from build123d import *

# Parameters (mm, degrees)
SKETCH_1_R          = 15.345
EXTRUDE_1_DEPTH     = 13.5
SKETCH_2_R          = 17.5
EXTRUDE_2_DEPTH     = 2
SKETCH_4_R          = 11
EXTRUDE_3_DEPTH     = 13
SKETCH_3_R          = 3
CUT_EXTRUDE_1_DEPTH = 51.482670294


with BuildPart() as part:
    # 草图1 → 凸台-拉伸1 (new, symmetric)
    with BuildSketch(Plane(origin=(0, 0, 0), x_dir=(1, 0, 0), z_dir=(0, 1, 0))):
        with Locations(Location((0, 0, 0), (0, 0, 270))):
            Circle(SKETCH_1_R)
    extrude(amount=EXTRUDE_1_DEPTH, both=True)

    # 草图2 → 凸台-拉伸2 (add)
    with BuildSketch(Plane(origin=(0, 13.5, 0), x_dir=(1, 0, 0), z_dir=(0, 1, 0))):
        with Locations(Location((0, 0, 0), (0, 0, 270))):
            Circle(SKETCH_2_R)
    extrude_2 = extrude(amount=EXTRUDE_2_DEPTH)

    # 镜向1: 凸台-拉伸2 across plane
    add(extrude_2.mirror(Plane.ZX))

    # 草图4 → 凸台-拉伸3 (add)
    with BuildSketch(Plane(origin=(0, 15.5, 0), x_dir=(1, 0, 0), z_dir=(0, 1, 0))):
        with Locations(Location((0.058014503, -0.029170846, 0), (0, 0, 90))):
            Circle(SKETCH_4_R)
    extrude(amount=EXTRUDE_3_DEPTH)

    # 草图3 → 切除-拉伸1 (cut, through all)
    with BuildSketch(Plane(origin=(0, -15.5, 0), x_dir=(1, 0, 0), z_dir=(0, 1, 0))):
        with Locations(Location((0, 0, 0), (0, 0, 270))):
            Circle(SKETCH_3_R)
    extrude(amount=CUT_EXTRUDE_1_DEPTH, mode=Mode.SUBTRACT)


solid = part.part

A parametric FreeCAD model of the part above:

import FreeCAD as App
import Part
import Sketcher

doc = App.newDocument("Part")
body = doc.addObject("PartDesign::Body", "Body")

# Sketch on XZ plane
sketch1 = body.newObject("Sketcher::SketchObject", "Sketch")
sketch1.AttachmentSupport = (doc.getObject("XZ_Plane"), [""])
sketch1.MapMode = "FlatFace"
sketch1.addGeometry(Part.Circle(App.Vector(0, 0, 0), App.Vector(0, 0, 1), 15), False)
sketch1.addConstraint([
    Sketcher.Constraint("Coincident", 0, 3, -1, 1),
    Sketcher.Constraint("Diameter", 0, 30.69),
])
pad1 = body.newObject("PartDesign::Pad", "Pad")
pad1.Profile = sketch1
pad1.Length = 27
pad1.Midplane = True

# Sketch on XZ plane
sketch2 = body.newObject("Sketcher::SketchObject", "Sketch001")
sketch2.AttachmentSupport = (doc.getObject("XZ_Plane"), [""])
sketch2.MapMode = "FlatFace"
sketch2.AttachmentOffset = App.Placement(App.Vector(0, 0, -13.5), App.Rotation())
sketch2.addGeometry(Part.Circle(App.Vector(0, 0, 0), App.Vector(0, 0, 1), 18), False)
sketch2.addConstraint([
    Sketcher.Constraint("Coincident", 0, 3, -1, 1),
    Sketcher.Constraint("Diameter", 0, 35.0),
])
pad2 = body.newObject("PartDesign::Pad", "Pad001")
pad2.Profile = sketch2
pad2.Length = 2
pad2.Reversed = True
doc.recompute()

mirrored = body.newObject("PartDesign::Mirrored", "Mirrored")
mirrored.Originals = [pad2]
mirrored.MirrorPlane = (doc.getObject("XZ_Plane"), [""])
body.Tip = mirrored

# Sketch on XZ plane
sketch3 = body.newObject("Sketcher::SketchObject", "Sketch002")
sketch3.AttachmentSupport = (doc.getObject("XZ_Plane"), [""])
sketch3.MapMode = "FlatFace"
sketch3.AttachmentOffset = App.Placement(App.Vector(0, 0, -15.5), App.Rotation())
sketch3.addGeometry(Part.Circle(App.Vector(0, 0, 0), App.Vector(0, 0, 1), 11), False)
sketch3.addConstraint([
    Sketcher.Constraint("Diameter", 0, 22.0),
    Sketcher.Constraint("DistanceY", -1, 1, 0, 3, 0.029171),
    Sketcher.Constraint("DistanceX", -1, 1, 0, 3, 0.058015),
])
pad3 = body.newObject("PartDesign::Pad", "Pad002")
pad3.Profile = sketch3
pad3.Length = 13
pad3.Reversed = True

# Sketch on XZ plane
sketch4 = body.newObject("Sketcher::SketchObject", "Sketch003")
sketch4.AttachmentSupport = (doc.getObject("XZ_Plane"), [""])
sketch4.MapMode = "FlatFace"
sketch4.AttachmentOffset = App.Placement(App.Vector(0, 0, 15.5), App.Rotation())
sketch4.addGeometry(Part.Circle(App.Vector(0, 0, 0), App.Vector(0, 0, 1), 3), False)
sketch4.addConstraint([
    Sketcher.Constraint("Coincident", 0, 3, -1, 1),
    Sketcher.Constraint("Diameter", 0, 6.0),
])
pocket1 = body.newObject("PartDesign::Pocket", "Pocket")
pocket1.Profile = sketch4
pocket1.Type = "ThroughAll"

doc.recompute()
